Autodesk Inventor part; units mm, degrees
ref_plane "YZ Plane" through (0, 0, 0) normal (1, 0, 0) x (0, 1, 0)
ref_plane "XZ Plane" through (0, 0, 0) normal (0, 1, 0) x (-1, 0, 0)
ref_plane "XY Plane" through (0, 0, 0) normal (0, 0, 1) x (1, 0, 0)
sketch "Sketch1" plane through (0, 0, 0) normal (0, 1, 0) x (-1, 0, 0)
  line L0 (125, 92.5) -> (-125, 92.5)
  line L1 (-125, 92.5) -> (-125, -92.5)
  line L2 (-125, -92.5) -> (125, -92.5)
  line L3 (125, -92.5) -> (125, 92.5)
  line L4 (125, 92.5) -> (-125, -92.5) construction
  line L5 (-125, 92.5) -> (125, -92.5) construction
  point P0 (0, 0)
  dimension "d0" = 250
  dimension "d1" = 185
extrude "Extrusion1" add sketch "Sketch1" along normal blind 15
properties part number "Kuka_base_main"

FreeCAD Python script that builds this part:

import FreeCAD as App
import Part
import Sketcher
Q = App.Units.Quantity

doc = App.newDocument("Part")
body = doc.addObject("PartDesign::Body", "Body")

# Sketch on XZ plane
sketch1 = doc.addObject("Sketcher::SketchObject", "Sketch")
body.addObject(sketch1)
sketch1.AttachmentSupport = (doc.XZ_Plane, [""])
sketch1.MapMode = "FlatFace"
sketch1.addGeometry([
    Part.LineSegment(App.Vector(-125, -92, 0), App.Vector(-125, 92, 0)),
    Part.LineSegment(App.Vector(-125, 92, 0), App.Vector(125, 92, 0)),
    Part.LineSegment(App.Vector(125, 92, 0), App.Vector(125, -92, 0)),
    Part.LineSegment(App.Vector(125, -92, 0), App.Vector(-125, -92, 0)),
], False)
sketch1.addConstraint([
    Sketcher.Constraint("Coincident", 0, 2, 1, 1),
    Sketcher.Constraint("Coincident", 1, 2, 2, 1),
    Sketcher.Constraint("Coincident", 2, 2, 3, 1),
    Sketcher.Constraint("Coincident", 3, 2, 0, 1),
    Sketcher.Constraint("Vertical", 0),
    Sketcher.Constraint("Horizontal", 1),
    Sketcher.Constraint("Vertical", 2),
    Sketcher.Constraint("Horizontal", 3),
    Sketcher.Constraint("Symmetric", 0, 2, 2, 2, -1, 1),
    Sketcher.Constraint("DistanceX", 1, 1, 1, 2, Q("250 mm")),
    Sketcher.Constraint("DistanceY", 0, 1, 0, 2, Q("185 mm")),
])
pad1 = doc.addObject("PartDesign::Pad", "Pad")
body.addObject(pad1)
pad1.Profile = sketch1
pad1.Length = 15
pad1.Reversed = True

doc.recompute()
